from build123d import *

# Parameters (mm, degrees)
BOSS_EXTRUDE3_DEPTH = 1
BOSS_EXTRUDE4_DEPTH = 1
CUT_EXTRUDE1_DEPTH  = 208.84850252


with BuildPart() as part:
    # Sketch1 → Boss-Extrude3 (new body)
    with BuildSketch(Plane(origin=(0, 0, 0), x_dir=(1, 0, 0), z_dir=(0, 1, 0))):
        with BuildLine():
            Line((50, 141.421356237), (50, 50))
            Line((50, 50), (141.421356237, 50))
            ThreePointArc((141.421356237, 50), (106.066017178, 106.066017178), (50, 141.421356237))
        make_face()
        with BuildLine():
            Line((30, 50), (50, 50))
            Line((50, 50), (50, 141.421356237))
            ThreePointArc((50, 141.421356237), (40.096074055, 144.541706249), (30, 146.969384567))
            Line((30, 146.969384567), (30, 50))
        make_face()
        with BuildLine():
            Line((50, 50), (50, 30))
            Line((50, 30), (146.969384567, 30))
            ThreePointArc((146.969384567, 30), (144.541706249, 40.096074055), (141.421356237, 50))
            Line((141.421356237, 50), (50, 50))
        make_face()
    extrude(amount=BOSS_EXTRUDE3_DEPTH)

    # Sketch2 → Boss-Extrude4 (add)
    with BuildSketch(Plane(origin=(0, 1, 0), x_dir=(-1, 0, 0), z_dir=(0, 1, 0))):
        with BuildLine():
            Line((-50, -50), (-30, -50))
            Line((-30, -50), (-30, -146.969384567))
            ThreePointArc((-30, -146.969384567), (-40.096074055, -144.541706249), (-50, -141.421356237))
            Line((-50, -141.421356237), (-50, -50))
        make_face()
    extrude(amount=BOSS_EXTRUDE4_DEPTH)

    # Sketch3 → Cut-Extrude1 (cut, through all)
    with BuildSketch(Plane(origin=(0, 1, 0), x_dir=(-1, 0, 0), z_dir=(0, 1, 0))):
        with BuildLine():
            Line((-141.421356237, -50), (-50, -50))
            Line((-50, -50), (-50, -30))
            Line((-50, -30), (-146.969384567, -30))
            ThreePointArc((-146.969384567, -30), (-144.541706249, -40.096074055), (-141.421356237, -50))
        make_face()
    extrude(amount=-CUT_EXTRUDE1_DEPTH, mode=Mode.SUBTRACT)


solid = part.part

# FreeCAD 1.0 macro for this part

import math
import FreeCAD as App
import Part
import Sketcher
from FreeCAD import Vector

doc = App.newDocument("Part")
body = doc.addObject("PartDesign::Body", "Body")

# Sketch on XZ plane
sketch1 = body.newObject("Sketcher::SketchObject", "Sketch")
sketch1.AttachmentSupport = (doc.getObject("XZ_Plane"), [""])
sketch1.MapMode = "FlatFace"
sketch1.addGeometry([
    Part.ArcOfCircle(Part.Circle(Vector(0, 0, 0), Vector(0, 0, 1), 150), math.radians(-70.528779), math.radians(-19.471221)),  # 0
    Part.ArcOfCircle(Part.Circle(Vector(0, 0, 0), Vector(0, 0, 1), 150), math.radians(-78.463041), math.radians(-70.528779)),  # 1
    Part.LineSegment(Vector(30, -146.969385, 0), Vector(30, -50, 0)),  # 2
    Part.LineSegment(Vector(30, -50, 0), Vector(50, -50, 0)),  # 3
    Part.LineSegment(Vector(50, -50, 0), Vector(50, -30, 0)),  # 4
    Part.LineSegment(Vector(50, -30, 0), Vector(146.969385, -30, 0)),  # 5
    Part.ArcOfCircle(Part.Circle(Vector(0, 0, 0), Vector(0, 0, 1), 150), math.radians(-19.471221), math.radians(-11.536959)),  # 6
], False)
sketch1.addConstraint([
    Sketcher.Constraint("Tangent", 0, 1, 1, 2),
    Sketcher.Constraint("Coincident", 1, 1, 2, 1),
    Sketcher.Constraint("Coincident", 2, 2, 3, 1),
    Sketcher.Constraint("Coincident", 3, 2, 4, 1),
    Sketcher.Constraint("Coincident", 4, 2, 5, 1),
    Sketcher.Constraint("Coincident", 5, 2, 6, 2),
    Sketcher.Constraint("Tangent", 6, 1, 0, 2),
    Sketcher.Constraint("Vertical", 2),
    Sketcher.Constraint("Horizontal", 3),
    Sketcher.Constraint("Vertical", 4),
    Sketcher.Constraint("Horizontal", 5),
    Sketcher.Constraint("Coincident", 0, 3, -1, 1),
    Sketcher.Constraint("Equal", 0, 1),
    Sketcher.Constraint("Equal", 1, 6),
    Sketcher.Constraint("Horizontal", 3, 2, 6, 1),
    Sketcher.Constraint("Vertical", 0, 1, 3, 2),
    Sketcher.Constraint("Equal", 5, 2),
    Sketcher.Constraint("Equal", 3, 4),
    Sketcher.Constraint("Radius", 0, 150.0),
    Sketcher.Constraint("DistanceX", 3, 1, 3, 2, 20.0),
    Sketcher.Constraint("DistanceX", -1, 1, 2, 2, 30.0),
])
pad1 = body.newObject("PartDesign::Pad", "Pad")
pad1.Profile = sketch1
pad1.Length = 1
pad1.Reversed = True

# Sketch on XZ plane
sketch2 = body.newObject("Sketcher::SketchObject", "Sketch001")
sketch2.AttachmentSupport = (doc.getObject("XZ_Plane"), [""])
sketch2.MapMode = "FlatFace"
sketch2.AttachmentOffset = App.Placement(Vector(0, 0, -1), App.Rotation())
sketch2.addGeometry([
    Part.LineSegment(Vector(30, -50, 0), Vector(50, -50, 0)),
    Part.LineSegment(Vector(50, -50, 0), Vector(50, -141.421356, 0)),
    Part.ArcOfCircle(Part.Circle(Vector(0, 0, 0), Vector(0, 0, 1), 150), math.radians(-78.463041), math.radians(-70.528779)),
    Part.LineSegment(Vector(30, -146.969385, 0), Vector(30, -50, 0)),
], False)
sketch2.addConstraint([
    Sketcher.Constraint("Coincident", 0, 2, 1, 1),
    Sketcher.Constraint("Coincident", 1, 2, 2, 2),
    Sketcher.Constraint("Coincident", 2, 1, 3, 1),
    Sketcher.Constraint("Coincident", 3, 2, 0, 1),
    Sketcher.Constraint("Horizontal", 0),
    Sketcher.Constraint("Vertical", 1),
    Sketcher.Constraint("Vertical", 3),
    Sketcher.Constraint("Coincident", 2, 3, -1, 1),
    Sketcher.Constraint("Radius", 2, 150.0),
    Sketcher.Constraint("DistanceX", 0, 1, 0, 2, 20.0),
    Sketcher.Constraint("DistanceX", -1, 1, 0, 2, 50.0),
    Sketcher.Constraint("DistanceY", 0, 2, -1, 1, 50.0),
])
pad2 = body.newObject("PartDesign::Pad", "Pad001")
pad2.Profile = sketch2
pad2.Length = 1
pad2.Reversed = True

# Sketch on XZ plane
sketch3 = body.newObject("Sketcher::SketchObject", "Sketch002")
sketch3.AttachmentSupport = (doc.getObject("XZ_Plane"), [""])
sketch3.MapMode = "FlatFace"
sketch3.AttachmentOffset = App.Placement(Vector(0, 0, -1), App.Rotation())
sketch3.addGeometry([
    Part.LineSegment(Vector(141.421356, -50, 0), Vector(50, -50, 0)),
    Part.LineSegment(Vector(50, -50, 0), Vector(50, -30, 0)),
    Part.LineSegment(Vector(50, -30, 0), Vector(146.969385, -30, 0)),
    Part.ArcOfCircle(Part.Circle(Vector(0, 0, 0), Vector(0, 0, 1), 150), math.radians(-19.471221), math.radians(-11.536959)),
], False)
sketch3.addConstraint([
    Sketcher.Constraint("Coincident", 0, 2, 1, 1),
    Sketcher.Constraint("Coincident", 1, 2, 2, 1),
    Sketcher.Constraint("Coincident", 2, 2, 3, 2),
    Sketcher.Constraint("Coincident", 3, 1, 0, 1),
    Sketcher.Constraint("Horizontal", 0),
    Sketcher.Constraint("Vertical", 1),
    Sketcher.Constraint("Horizontal", 2),
    Sketcher.Constraint("Coincident", 3, 3, -1, 1),
    Sketcher.Constraint("Radius", 3, 150.0),
    Sketcher.Constraint("DistanceY", 1, 1, 1, 2, 20.0),
    Sketcher.Constraint("DistanceX", -1, 1, 0, 2, 50.0),
    Sketcher.Constraint("DistanceY", 0, 2, -1, 1, 50.0),
])
pocket1 = body.newObject("PartDesign::Pocket", "Pocket")
pocket1.Profile = sketch3
pocket1.Type = "ThroughAll"
pocket1.Reversed = True

doc.recompute()
